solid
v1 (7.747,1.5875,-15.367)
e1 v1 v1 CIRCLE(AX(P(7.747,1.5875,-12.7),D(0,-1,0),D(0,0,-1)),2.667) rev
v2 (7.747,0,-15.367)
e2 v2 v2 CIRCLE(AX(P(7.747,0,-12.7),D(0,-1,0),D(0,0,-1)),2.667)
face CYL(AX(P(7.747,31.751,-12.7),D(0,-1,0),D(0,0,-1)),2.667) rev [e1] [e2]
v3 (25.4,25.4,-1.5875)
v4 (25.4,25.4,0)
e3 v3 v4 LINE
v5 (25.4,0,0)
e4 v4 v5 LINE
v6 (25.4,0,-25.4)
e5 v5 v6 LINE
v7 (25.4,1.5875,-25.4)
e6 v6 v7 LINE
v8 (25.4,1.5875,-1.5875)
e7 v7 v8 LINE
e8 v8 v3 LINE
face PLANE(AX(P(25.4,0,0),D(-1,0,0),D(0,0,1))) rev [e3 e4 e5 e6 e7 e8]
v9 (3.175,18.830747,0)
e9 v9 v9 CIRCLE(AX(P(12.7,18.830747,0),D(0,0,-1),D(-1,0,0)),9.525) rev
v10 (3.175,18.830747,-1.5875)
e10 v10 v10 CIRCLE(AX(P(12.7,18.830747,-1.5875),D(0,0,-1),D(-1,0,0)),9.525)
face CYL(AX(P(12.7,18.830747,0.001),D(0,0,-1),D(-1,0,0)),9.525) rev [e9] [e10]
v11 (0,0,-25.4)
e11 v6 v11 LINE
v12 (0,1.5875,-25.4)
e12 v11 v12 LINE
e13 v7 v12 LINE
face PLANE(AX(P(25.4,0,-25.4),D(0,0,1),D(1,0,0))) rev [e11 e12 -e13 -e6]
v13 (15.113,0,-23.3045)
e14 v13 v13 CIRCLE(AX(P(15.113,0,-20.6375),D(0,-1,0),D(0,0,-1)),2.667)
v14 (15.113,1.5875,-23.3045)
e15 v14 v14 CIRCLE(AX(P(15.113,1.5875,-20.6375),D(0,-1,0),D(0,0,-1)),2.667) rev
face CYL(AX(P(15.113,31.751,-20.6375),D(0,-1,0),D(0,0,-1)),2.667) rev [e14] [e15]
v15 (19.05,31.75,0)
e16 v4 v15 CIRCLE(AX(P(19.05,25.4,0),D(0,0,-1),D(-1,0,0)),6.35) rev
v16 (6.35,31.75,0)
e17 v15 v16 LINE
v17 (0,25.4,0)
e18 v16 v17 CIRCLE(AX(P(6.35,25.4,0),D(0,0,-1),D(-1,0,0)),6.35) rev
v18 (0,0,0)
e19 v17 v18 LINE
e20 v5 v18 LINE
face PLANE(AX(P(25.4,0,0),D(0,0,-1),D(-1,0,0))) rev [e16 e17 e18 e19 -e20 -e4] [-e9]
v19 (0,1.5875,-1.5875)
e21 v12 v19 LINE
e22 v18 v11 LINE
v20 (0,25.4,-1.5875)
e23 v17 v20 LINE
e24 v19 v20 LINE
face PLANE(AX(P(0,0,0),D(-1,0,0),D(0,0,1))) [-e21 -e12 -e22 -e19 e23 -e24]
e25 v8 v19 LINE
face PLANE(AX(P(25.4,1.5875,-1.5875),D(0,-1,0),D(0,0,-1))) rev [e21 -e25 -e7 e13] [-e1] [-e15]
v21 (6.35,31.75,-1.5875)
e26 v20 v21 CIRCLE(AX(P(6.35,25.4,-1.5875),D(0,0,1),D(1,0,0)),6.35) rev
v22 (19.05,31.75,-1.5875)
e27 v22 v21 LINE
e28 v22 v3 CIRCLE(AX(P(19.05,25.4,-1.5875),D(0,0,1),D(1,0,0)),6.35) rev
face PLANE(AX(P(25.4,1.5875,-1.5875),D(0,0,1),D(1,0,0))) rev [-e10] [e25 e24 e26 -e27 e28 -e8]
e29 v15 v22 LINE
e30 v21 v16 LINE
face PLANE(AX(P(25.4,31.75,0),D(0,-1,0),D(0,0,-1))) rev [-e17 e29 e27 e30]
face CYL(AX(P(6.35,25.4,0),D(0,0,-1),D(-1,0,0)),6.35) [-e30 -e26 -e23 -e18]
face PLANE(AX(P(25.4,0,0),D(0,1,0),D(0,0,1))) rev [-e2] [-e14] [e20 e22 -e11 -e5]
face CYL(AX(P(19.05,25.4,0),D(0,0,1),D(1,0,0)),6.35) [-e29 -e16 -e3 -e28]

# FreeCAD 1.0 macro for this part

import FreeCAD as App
import Part
import Sketcher
from FreeCAD import Vector
Q = App.Units.Quantity


def edges_at(feature, points):
    """Names of the edges that pass closest to the given points."""
    edges = feature.Shape.Edges
    near = lambda p: min(range(len(edges)), key=lambda i: edges[i].distToShape(Part.Vertex(*p))[0])
    return sorted({f"Edge{near(p) + 1}" for p in points})


def add_polygon(sketch, points):
    """Adds a closed chain of lines whose ends are joined by coincident constraints."""
    first, n = sketch.GeometryCount, len(points)
    for a, b in zip(points, points[1:] + points[:1]):
        sketch.addGeometry(Part.LineSegment(App.Vector(*a, 0), App.Vector(*b, 0)), False)
    for i in range(n):
        sketch.addConstraint(Sketcher.Constraint("Coincident", first + i, 2, first + (i + 1) % n, 1))

doc = App.newDocument("Part")
body = doc.addObject("PartDesign::Body", "Body")

# Sketch on YZ plane
sketch1 = body.newObject("Sketcher::SketchObject", "Sketch")
sketch1.AttachmentSupport = (doc.getObject("YZ_Plane"), [""])
sketch1.MapMode = "FlatFace"
add_polygon(sketch1, [(1.6, -25.4), (1.6, -1.6), (31.8, -1.6), (31.8, 0), (0, 0), (0, -25.4)])  # lines 0-5
sketch1.addConstraint([
    Sketcher.Constraint("Vertical", 0),
    Sketcher.Constraint("Horizontal", 1),
    Sketcher.Constraint("Vertical", 2),
    Sketcher.Constraint("Horizontal", 3),
    Sketcher.Constraint("Vertical", 4),
    Sketcher.Constraint("Horizontal", 5),
    Sketcher.Constraint("Coincident", 3, 2, -1, 1),
    Sketcher.Constraint("Equal", 5, 2),
    Sketcher.Constraint("DistanceY", 4, 2, 4, 1, Q("1 in")),
    Sketcher.Constraint("DistanceX", 3, 2, 3, 1, Q("1.25 in")),
    Sketcher.Constraint("DistanceX", 1, 1, 1, 2, Q("1.1875 in")),
])
pad1 = body.newObject("PartDesign::Pad", "Pad")
pad1.Profile = sketch1
pad1.Length = Q("1 in")

# Sketch on XY plane
sketch2 = body.newObject("Sketcher::SketchObject", "Sketch001")
sketch2.AttachmentSupport = (doc.getObject("XY_Plane"), [""])
sketch2.MapMode = "FlatFace"
sketch2.AttachmentOffset = App.Placement(Vector(0, 0, -0.0625 * 25.4), App.Rotation())
sketch2.addGeometry(Part.Circle(Vector(13, 19, 0), Vector(0, 0, 1), 10), False)
sketch2.addConstraint([
    Sketcher.Constraint("Diameter", 0, Q("0.75 in")),
    Sketcher.Constraint("DistanceX", -1, 1, 0, 3, Q("0.5 in")),
    Sketcher.Constraint("DistanceY", -1, 1, 0, 3, 18.830747),
])
pocket1 = body.newObject("PartDesign::Pocket", "Pocket")
pocket1.Profile = sketch2
pocket1.Type = "UpToFirst"
pocket1.Reversed = True
doc.recompute()

fillet = body.newObject("PartDesign::Fillet", "Fillet")
fillet.Base = (pocket1, edges_at(pocket1, [(25.4, 31.75, -0.794), (0, 31.75, -0.794)]))
fillet.Radius = Q("0.25 in")

# Sketch on XZ plane
sketch3 = body.newObject("Sketcher::SketchObject", "Sketch002")
sketch3.AttachmentSupport = (doc.getObject("XZ_Plane"), [""])
sketch3.MapMode = "FlatFace"
sketch3.addGeometry(Part.Circle(Vector(15.1, -20.6, 0), Vector(0, 0, 1), 2.7), False)
sketch3.addConstraint([
    Sketcher.Constraint("Diameter", 0, Q("0.21 in")),
    Sketcher.Constraint("DistanceX", -1, 1, 0, 3, Q("0.595 in")),
    Sketcher.Constraint("DistanceY", 0, 3, -1, 1, Q("0.8125 in")),
])
pocket2 = body.newObject("PartDesign::Pocket", "Pocket001")
pocket2.Profile = sketch3
pocket2.Type = "UpToFirst"

# Sketch on XZ plane
sketch4 = body.newObject("Sketcher::SketchObject", "Sketch003")
sketch4.AttachmentSupport = (doc.getObject("XZ_Plane"), [""])
sketch4.MapMode = "FlatFace"
sketch4.addGeometry(Part.Circle(Vector(7.7, -12.7, 0), Vector(0, 0, 1), 2.7), False)
sketch4.addConstraint([
    Sketcher.Constraint("Diameter", 0, Q("0.21 in")),
    Sketcher.Constraint("DistanceY", 0, 3, -1, 1, Q("0.5 in")),
    Sketcher.Constraint("DistanceX", -1, 1, 0, 3, Q("0.305 in")),
])
pocket3 = body.newObject("PartDesign::Pocket", "Pocket002")
pocket3.Profile = sketch4
pocket3.Type = "UpToFirst"

doc.recompute()
